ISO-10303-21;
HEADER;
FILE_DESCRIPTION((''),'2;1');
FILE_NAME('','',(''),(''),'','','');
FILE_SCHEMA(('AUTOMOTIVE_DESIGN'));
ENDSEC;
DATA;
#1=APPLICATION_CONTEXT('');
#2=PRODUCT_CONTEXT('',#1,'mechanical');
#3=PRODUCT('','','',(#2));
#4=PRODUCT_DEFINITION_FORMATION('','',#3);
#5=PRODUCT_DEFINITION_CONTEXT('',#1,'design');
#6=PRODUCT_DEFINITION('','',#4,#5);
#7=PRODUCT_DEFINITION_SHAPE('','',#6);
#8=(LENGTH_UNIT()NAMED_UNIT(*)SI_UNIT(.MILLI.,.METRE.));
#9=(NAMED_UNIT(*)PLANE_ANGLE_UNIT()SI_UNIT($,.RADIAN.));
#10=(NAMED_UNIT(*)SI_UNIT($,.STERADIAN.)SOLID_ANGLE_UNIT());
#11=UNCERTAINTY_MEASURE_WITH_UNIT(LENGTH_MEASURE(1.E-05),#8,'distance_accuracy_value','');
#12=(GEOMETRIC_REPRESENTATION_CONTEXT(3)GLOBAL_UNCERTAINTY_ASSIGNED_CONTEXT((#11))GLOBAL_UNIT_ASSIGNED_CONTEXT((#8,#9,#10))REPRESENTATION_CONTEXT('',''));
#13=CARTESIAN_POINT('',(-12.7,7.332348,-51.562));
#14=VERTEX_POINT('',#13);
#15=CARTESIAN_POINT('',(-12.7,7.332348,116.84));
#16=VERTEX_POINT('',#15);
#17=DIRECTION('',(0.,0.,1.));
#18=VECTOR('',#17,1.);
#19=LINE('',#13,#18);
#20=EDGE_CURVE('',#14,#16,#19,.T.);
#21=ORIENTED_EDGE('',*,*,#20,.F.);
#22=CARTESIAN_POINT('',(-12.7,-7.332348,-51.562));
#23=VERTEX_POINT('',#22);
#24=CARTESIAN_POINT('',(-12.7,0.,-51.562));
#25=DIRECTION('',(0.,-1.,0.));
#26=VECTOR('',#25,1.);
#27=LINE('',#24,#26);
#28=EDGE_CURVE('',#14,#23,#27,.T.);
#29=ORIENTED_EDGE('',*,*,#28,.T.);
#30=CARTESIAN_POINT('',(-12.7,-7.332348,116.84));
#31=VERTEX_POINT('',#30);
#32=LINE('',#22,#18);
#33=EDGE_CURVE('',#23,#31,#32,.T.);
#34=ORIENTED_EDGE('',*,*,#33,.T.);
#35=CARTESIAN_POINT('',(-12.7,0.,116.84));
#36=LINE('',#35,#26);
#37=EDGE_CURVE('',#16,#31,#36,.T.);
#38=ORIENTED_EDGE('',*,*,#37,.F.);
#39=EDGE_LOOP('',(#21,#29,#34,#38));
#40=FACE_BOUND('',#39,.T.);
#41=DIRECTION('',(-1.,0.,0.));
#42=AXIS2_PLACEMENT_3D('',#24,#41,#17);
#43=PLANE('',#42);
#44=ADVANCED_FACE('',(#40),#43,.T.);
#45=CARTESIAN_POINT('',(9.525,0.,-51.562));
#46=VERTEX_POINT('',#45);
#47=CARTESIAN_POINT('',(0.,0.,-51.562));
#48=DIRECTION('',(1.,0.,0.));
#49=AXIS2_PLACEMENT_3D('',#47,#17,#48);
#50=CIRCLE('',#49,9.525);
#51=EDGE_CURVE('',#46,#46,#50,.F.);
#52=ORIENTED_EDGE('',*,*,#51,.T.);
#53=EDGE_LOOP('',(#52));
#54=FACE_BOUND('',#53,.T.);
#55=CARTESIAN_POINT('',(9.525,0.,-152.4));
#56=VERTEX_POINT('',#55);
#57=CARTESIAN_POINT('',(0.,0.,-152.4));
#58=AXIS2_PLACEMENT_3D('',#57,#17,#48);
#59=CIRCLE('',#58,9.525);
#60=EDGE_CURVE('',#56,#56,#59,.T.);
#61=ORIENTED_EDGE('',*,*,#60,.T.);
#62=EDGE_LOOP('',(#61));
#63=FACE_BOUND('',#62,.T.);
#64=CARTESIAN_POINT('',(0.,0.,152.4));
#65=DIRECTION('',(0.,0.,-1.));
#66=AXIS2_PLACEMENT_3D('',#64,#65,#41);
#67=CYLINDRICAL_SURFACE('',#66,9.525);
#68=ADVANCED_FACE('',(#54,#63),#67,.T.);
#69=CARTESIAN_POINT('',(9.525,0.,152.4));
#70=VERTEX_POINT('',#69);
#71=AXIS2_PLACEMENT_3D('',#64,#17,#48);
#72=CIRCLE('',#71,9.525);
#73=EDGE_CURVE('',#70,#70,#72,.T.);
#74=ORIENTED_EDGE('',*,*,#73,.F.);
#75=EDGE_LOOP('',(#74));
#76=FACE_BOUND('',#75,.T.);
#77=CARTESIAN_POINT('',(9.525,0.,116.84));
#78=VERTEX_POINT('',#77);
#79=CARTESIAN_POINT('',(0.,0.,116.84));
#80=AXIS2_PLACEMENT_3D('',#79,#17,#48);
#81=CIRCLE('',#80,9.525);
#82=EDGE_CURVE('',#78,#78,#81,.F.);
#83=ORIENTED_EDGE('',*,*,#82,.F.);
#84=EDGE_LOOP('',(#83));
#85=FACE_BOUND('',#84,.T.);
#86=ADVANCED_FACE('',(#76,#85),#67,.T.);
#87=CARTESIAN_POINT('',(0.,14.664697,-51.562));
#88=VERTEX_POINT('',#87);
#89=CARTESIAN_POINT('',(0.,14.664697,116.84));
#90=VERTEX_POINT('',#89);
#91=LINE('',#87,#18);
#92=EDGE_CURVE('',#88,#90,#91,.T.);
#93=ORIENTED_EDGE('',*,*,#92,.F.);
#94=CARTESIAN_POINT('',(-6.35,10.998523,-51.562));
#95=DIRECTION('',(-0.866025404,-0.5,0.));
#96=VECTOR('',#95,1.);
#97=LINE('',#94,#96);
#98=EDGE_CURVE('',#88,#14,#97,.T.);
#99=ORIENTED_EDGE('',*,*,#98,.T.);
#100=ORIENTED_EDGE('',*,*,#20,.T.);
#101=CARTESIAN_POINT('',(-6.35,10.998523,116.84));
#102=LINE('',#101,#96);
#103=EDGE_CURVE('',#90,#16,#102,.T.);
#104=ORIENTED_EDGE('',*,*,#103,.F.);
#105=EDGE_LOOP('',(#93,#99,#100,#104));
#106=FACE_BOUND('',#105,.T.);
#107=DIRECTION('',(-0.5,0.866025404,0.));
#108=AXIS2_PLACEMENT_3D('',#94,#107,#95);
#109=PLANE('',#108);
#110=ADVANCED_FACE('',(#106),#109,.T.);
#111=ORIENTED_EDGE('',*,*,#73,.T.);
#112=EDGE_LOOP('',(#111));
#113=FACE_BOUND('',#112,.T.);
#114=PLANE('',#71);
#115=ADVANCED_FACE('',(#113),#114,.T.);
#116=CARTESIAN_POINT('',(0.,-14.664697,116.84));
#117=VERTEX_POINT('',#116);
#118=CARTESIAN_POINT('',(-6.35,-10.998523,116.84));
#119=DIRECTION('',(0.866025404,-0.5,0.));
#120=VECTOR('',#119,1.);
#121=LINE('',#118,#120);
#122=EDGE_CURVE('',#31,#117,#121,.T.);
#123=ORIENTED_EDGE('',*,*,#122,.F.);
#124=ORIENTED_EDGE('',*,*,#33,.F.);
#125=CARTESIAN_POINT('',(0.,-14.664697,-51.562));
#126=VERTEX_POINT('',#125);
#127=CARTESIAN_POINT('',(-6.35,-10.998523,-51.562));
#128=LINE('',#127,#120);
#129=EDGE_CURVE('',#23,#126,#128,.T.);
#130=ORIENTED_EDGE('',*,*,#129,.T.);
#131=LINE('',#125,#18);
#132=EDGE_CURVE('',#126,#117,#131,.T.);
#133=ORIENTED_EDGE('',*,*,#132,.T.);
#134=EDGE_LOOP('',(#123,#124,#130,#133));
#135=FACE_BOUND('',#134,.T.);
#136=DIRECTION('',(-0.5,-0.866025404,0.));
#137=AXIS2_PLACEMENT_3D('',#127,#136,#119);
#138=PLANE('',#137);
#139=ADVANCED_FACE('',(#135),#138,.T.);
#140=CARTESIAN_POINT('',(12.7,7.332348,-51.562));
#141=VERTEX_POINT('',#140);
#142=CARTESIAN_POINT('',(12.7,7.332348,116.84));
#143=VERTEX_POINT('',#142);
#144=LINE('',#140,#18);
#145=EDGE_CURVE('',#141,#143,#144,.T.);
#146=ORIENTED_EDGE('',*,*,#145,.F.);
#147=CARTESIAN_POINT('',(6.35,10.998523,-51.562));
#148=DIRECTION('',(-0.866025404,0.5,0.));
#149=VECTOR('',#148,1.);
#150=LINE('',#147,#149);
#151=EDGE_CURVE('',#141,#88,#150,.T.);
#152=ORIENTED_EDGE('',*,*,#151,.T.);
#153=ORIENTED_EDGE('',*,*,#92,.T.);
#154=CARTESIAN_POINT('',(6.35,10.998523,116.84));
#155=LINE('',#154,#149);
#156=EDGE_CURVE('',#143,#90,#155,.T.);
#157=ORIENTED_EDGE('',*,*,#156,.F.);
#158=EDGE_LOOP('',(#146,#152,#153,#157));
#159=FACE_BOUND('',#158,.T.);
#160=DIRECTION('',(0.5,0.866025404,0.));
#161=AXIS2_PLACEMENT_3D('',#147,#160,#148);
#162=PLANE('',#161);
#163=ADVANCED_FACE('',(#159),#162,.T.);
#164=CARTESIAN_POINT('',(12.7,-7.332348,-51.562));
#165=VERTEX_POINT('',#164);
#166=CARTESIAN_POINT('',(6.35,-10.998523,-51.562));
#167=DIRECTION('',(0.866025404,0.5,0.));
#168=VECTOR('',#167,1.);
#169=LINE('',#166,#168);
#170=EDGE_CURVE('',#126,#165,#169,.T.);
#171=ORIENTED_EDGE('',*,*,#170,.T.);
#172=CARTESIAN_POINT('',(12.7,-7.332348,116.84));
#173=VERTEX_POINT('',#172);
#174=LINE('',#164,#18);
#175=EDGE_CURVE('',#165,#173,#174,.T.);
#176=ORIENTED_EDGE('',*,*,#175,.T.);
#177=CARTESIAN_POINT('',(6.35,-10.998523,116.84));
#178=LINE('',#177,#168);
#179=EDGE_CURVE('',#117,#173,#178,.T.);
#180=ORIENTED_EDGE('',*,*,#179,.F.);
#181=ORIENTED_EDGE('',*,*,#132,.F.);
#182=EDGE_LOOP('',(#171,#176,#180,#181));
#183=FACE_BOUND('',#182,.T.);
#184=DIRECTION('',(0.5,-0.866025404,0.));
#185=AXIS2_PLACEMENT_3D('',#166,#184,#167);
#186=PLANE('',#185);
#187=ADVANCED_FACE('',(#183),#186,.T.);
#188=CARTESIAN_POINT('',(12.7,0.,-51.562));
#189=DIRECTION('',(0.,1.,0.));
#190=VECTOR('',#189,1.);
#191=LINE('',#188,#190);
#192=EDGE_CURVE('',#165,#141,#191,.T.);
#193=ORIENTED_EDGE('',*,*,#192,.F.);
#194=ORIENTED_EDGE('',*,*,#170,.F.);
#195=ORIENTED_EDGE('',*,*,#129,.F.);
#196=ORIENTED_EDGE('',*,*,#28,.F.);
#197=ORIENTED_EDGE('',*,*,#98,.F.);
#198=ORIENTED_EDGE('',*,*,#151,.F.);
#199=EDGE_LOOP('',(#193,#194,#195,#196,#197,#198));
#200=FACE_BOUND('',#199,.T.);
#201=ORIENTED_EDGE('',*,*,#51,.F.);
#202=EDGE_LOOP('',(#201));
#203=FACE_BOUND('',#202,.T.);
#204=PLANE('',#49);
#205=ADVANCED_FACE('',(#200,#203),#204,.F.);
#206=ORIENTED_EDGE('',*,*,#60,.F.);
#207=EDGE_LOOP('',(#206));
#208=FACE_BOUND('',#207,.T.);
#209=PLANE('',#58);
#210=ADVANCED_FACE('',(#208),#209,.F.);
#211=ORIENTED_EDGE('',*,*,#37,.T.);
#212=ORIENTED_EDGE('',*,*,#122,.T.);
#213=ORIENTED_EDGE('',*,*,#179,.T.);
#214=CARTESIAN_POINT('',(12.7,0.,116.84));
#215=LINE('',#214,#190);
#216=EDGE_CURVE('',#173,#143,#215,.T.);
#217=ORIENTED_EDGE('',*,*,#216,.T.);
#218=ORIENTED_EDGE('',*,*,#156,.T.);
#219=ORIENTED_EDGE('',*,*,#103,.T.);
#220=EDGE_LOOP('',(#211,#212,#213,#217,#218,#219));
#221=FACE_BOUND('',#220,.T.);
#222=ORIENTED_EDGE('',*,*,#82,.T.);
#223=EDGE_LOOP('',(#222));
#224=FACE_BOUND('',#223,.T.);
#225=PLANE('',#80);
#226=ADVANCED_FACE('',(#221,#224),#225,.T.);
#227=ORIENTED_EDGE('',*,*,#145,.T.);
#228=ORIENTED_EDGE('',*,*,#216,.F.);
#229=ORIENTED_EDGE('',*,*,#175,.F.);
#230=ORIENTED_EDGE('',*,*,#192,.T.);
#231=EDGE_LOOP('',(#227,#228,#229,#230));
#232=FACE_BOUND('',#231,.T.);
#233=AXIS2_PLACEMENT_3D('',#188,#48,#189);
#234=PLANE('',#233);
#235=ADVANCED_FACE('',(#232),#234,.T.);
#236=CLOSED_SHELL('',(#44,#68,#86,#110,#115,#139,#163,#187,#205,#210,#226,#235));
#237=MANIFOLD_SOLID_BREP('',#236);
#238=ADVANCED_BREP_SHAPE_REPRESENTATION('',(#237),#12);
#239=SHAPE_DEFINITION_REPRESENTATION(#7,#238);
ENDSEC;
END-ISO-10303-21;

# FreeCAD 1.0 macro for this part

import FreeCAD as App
import Part
import Sketcher
from FreeCAD import Vector
Q = App.Units.Quantity


def add_polygon(sketch, points):
    """Adds a closed chain of lines whose ends are joined by coincident constraints."""
    first, n = sketch.GeometryCount, len(points)
    for a, b in zip(points, points[1:] + points[:1]):
        sketch.addGeometry(Part.LineSegment(App.Vector(*a, 0), App.Vector(*b, 0)), False)
    for i in range(n):
        sketch.addConstraint(Sketcher.Constraint("Coincident", first + i, 2, first + (i + 1) % n, 1))

doc = App.newDocument("Part")
body = doc.addObject("PartDesign::Body", "Body")

# Sketch on XY plane
sketch1 = body.newObject("Sketcher::SketchObject", "Sketch")
sketch1.AttachmentSupport = (doc.getObject("XY_Plane"), [""])
sketch1.MapMode = "FlatFace"
add_polygon(sketch1, [(-13, 7), (-13, -7), (0, -15), (13, -7), (13, 7), (0, 15)])  # lines 0-5
sketch1.addGeometry(Part.Circle(Vector(0, 0, 0), Vector(0, 0, 1), 10), False)  # 6
sketch1.addConstraint(Sketcher.Constraint("Vertical", 0))
sketch1.addConstraint(Sketcher.Constraint("Vertical", 3))
sketch1.addConstraint(Sketcher.Constraint("Coincident", 6, 3, -1, 1))
sketch1.addConstraint(Sketcher.Constraint("Symmetric", 0, 2, 3, 2, -1, 1))
sketch1.addConstraint(Sketcher.Constraint("Symmetric", 1, 2, 4, 2, -1, 1))
sketch1.addConstraint(Sketcher.Constraint("PointOnObject", 1, 2, -2))
sketch1.addConstraint(Sketcher.Constraint("Parallel", 2, 5))
sketch1.addConstraint(Sketcher.Constraint("Horizontal", 0, 2, 2, 2))
sketch1.addConstraint(Sketcher.Constraint("Diameter", 6, Q("0.75 in")))
sketch1.addConstraint(Sketcher.Constraint("Angle", 1, Q("-30 deg")))
sketch1.addConstraint(Sketcher.Constraint("DistanceX", 0, 2, 2, 2, Q("1 in")))
sketch1.addConstraint(Sketcher.Constraint("DistanceY", 0, 2, 0, 1, 14.664697))
pad1 = body.newObject("PartDesign::Pad", "Pad")
pad1.Profile = sketch1
pad1.Type = "TwoLengths"
pad1.Length = Q("4.6 in")
pad1.Length2 = Q("2.03 in")

# Sketch on XY plane
sketch2 = body.newObject("Sketcher::SketchObject", "Sketch001")
sketch2.AttachmentSupport = (doc.getObject("XY_Plane"), [""])
sketch2.MapMode = "FlatFace"
sketch2.addGeometry(Part.Circle(Vector(0, 0, 0), Vector(0, 0, 1), 10), False)
sketch2.addConstraint(Sketcher.Constraint("Coincident", 0, 3, -1, 1))
sketch2.addConstraint(Sketcher.Constraint("Diameter", 0, Q("0.75 in")))
pad2 = body.newObject("PartDesign::Pad", "Pad001")
pad2.Profile = sketch2
pad2.Length = Q("12 in")
pad2.Midplane = True

doc.recompute()
